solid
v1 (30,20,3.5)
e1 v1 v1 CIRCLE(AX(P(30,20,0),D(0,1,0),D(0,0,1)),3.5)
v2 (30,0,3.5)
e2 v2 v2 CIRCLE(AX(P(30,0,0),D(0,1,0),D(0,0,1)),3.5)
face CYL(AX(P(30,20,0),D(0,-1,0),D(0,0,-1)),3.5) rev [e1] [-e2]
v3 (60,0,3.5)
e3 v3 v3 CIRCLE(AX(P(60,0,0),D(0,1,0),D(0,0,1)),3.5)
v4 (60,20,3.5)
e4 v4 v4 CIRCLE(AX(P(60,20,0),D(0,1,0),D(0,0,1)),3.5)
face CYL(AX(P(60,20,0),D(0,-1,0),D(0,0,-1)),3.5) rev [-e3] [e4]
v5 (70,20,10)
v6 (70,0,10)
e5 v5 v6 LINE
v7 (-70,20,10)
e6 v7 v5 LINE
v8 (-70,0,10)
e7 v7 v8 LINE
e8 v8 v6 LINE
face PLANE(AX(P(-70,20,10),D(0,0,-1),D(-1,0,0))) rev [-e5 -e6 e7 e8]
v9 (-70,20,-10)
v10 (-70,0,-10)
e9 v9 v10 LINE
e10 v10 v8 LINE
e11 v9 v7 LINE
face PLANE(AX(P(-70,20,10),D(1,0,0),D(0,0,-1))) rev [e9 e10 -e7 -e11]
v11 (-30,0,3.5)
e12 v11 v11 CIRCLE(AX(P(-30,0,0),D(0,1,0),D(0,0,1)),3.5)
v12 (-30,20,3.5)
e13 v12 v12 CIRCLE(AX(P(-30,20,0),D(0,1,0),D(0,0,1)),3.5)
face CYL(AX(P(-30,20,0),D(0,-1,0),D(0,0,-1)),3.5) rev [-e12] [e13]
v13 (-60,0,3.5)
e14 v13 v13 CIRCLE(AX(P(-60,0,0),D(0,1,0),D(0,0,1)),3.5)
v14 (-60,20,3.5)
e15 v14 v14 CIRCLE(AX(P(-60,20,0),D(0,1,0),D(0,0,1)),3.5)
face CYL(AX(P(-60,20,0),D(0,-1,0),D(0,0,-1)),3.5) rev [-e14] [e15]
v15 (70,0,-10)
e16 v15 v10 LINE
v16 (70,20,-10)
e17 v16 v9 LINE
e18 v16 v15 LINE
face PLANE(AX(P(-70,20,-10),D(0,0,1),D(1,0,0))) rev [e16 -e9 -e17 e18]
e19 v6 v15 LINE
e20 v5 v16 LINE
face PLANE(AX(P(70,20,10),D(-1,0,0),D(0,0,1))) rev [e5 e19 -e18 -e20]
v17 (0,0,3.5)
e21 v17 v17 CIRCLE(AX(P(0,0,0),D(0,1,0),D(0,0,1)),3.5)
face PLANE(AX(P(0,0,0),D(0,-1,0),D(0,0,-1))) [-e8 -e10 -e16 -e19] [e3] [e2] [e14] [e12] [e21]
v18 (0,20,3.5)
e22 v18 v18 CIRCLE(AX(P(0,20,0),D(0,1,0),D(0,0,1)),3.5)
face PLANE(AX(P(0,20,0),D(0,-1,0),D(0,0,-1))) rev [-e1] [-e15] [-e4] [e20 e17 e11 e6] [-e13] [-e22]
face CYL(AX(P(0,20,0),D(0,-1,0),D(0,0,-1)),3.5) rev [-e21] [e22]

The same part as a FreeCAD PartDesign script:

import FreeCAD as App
import Part
import Sketcher
from FreeCAD import Vector

doc = App.newDocument("Part")
body = doc.addObject("PartDesign::Body", "Body")

sketch1 = body.newObject("Sketcher::SketchObject", "Sketch")
sketch1.AttachmentSupport = (doc.getObject("XZ_Plane"), [""])
sketch1.MapMode = "FlatFace"
sketch1.addGeometry([
    Part.LineSegment(Vector(-70, -10, 0), Vector(-70, 10, 0)),
    Part.LineSegment(Vector(-70, 10, 0), Vector(70, 10, 0)),
    Part.LineSegment(Vector(70, 10, 0), Vector(70, -10, 0)),
    Part.LineSegment(Vector(70, -10, 0), Vector(-70, -10, 0)),
    Part.Circle(Vector(-60, 0, 0), Vector(0, 0, 1), 3.5),
    Part.Circle(Vector(-30, 0, 0), Vector(0, 0, 1), 3.5),
    Part.Circle(Vector(0, 0, 0), Vector(0, 0, 1), 3.5),
    Part.Circle(Vector(30, 0, 0), Vector(0, 0, 1), 3.5),
    Part.Circle(Vector(60, 0, 0), Vector(0, 0, 1), 3.5),
], False)
sketch1.addConstraint([
    Sketcher.Constraint("Coincident", 0, 2, 1, 1),
    Sketcher.Constraint("Coincident", 1, 2, 2, 1),
    Sketcher.Constraint("Coincident", 2, 2, 3, 1),
    Sketcher.Constraint("Coincident", 3, 2, 0, 1),
    Sketcher.Constraint("Vertical", 0),
    Sketcher.Constraint("Horizontal", 1),
    Sketcher.Constraint("Vertical", 2),
    Sketcher.Constraint("Horizontal", 3),
    Sketcher.Constraint("Coincident", 6, 3, -1, 1),
    Sketcher.Constraint("Equal", 4, 5),
    Sketcher.Constraint("Equal", 5, 6),
    Sketcher.Constraint("Equal", 6, 7),
    Sketcher.Constraint("Equal", 7, 8),
    Sketcher.Constraint("Symmetric", 5, 3, 7, 3, -1, 1),
    Sketcher.Constraint("Symmetric", 4, 3, 8, 3, -1, 1),
    Sketcher.Constraint("Symmetric", 0, 2, 2, 2, -1, 1),
    Sketcher.Constraint("PointOnObject", 4, 3, -1),
    Sketcher.Constraint("PointOnObject", 5, 3, -1),
    Sketcher.Constraint("Diameter", 4, 7.0),
    Sketcher.Constraint("DistanceX", 1, 1, 1, 2, 140.0),
    Sketcher.Constraint("DistanceY", 0, 1, 0, 2, 20.0),
    Sketcher.Constraint("DistanceX", 4, 3, -1, 1, 60.0),
    Sketcher.Constraint("DistanceX", 5, 3, -1, 1, 30.0),
])
pad1 = body.newObject("PartDesign::Pad", "Pad")
pad1.Profile = sketch1
pad1.Length = 20
pad1.Reversed = True

doc.recompute()
